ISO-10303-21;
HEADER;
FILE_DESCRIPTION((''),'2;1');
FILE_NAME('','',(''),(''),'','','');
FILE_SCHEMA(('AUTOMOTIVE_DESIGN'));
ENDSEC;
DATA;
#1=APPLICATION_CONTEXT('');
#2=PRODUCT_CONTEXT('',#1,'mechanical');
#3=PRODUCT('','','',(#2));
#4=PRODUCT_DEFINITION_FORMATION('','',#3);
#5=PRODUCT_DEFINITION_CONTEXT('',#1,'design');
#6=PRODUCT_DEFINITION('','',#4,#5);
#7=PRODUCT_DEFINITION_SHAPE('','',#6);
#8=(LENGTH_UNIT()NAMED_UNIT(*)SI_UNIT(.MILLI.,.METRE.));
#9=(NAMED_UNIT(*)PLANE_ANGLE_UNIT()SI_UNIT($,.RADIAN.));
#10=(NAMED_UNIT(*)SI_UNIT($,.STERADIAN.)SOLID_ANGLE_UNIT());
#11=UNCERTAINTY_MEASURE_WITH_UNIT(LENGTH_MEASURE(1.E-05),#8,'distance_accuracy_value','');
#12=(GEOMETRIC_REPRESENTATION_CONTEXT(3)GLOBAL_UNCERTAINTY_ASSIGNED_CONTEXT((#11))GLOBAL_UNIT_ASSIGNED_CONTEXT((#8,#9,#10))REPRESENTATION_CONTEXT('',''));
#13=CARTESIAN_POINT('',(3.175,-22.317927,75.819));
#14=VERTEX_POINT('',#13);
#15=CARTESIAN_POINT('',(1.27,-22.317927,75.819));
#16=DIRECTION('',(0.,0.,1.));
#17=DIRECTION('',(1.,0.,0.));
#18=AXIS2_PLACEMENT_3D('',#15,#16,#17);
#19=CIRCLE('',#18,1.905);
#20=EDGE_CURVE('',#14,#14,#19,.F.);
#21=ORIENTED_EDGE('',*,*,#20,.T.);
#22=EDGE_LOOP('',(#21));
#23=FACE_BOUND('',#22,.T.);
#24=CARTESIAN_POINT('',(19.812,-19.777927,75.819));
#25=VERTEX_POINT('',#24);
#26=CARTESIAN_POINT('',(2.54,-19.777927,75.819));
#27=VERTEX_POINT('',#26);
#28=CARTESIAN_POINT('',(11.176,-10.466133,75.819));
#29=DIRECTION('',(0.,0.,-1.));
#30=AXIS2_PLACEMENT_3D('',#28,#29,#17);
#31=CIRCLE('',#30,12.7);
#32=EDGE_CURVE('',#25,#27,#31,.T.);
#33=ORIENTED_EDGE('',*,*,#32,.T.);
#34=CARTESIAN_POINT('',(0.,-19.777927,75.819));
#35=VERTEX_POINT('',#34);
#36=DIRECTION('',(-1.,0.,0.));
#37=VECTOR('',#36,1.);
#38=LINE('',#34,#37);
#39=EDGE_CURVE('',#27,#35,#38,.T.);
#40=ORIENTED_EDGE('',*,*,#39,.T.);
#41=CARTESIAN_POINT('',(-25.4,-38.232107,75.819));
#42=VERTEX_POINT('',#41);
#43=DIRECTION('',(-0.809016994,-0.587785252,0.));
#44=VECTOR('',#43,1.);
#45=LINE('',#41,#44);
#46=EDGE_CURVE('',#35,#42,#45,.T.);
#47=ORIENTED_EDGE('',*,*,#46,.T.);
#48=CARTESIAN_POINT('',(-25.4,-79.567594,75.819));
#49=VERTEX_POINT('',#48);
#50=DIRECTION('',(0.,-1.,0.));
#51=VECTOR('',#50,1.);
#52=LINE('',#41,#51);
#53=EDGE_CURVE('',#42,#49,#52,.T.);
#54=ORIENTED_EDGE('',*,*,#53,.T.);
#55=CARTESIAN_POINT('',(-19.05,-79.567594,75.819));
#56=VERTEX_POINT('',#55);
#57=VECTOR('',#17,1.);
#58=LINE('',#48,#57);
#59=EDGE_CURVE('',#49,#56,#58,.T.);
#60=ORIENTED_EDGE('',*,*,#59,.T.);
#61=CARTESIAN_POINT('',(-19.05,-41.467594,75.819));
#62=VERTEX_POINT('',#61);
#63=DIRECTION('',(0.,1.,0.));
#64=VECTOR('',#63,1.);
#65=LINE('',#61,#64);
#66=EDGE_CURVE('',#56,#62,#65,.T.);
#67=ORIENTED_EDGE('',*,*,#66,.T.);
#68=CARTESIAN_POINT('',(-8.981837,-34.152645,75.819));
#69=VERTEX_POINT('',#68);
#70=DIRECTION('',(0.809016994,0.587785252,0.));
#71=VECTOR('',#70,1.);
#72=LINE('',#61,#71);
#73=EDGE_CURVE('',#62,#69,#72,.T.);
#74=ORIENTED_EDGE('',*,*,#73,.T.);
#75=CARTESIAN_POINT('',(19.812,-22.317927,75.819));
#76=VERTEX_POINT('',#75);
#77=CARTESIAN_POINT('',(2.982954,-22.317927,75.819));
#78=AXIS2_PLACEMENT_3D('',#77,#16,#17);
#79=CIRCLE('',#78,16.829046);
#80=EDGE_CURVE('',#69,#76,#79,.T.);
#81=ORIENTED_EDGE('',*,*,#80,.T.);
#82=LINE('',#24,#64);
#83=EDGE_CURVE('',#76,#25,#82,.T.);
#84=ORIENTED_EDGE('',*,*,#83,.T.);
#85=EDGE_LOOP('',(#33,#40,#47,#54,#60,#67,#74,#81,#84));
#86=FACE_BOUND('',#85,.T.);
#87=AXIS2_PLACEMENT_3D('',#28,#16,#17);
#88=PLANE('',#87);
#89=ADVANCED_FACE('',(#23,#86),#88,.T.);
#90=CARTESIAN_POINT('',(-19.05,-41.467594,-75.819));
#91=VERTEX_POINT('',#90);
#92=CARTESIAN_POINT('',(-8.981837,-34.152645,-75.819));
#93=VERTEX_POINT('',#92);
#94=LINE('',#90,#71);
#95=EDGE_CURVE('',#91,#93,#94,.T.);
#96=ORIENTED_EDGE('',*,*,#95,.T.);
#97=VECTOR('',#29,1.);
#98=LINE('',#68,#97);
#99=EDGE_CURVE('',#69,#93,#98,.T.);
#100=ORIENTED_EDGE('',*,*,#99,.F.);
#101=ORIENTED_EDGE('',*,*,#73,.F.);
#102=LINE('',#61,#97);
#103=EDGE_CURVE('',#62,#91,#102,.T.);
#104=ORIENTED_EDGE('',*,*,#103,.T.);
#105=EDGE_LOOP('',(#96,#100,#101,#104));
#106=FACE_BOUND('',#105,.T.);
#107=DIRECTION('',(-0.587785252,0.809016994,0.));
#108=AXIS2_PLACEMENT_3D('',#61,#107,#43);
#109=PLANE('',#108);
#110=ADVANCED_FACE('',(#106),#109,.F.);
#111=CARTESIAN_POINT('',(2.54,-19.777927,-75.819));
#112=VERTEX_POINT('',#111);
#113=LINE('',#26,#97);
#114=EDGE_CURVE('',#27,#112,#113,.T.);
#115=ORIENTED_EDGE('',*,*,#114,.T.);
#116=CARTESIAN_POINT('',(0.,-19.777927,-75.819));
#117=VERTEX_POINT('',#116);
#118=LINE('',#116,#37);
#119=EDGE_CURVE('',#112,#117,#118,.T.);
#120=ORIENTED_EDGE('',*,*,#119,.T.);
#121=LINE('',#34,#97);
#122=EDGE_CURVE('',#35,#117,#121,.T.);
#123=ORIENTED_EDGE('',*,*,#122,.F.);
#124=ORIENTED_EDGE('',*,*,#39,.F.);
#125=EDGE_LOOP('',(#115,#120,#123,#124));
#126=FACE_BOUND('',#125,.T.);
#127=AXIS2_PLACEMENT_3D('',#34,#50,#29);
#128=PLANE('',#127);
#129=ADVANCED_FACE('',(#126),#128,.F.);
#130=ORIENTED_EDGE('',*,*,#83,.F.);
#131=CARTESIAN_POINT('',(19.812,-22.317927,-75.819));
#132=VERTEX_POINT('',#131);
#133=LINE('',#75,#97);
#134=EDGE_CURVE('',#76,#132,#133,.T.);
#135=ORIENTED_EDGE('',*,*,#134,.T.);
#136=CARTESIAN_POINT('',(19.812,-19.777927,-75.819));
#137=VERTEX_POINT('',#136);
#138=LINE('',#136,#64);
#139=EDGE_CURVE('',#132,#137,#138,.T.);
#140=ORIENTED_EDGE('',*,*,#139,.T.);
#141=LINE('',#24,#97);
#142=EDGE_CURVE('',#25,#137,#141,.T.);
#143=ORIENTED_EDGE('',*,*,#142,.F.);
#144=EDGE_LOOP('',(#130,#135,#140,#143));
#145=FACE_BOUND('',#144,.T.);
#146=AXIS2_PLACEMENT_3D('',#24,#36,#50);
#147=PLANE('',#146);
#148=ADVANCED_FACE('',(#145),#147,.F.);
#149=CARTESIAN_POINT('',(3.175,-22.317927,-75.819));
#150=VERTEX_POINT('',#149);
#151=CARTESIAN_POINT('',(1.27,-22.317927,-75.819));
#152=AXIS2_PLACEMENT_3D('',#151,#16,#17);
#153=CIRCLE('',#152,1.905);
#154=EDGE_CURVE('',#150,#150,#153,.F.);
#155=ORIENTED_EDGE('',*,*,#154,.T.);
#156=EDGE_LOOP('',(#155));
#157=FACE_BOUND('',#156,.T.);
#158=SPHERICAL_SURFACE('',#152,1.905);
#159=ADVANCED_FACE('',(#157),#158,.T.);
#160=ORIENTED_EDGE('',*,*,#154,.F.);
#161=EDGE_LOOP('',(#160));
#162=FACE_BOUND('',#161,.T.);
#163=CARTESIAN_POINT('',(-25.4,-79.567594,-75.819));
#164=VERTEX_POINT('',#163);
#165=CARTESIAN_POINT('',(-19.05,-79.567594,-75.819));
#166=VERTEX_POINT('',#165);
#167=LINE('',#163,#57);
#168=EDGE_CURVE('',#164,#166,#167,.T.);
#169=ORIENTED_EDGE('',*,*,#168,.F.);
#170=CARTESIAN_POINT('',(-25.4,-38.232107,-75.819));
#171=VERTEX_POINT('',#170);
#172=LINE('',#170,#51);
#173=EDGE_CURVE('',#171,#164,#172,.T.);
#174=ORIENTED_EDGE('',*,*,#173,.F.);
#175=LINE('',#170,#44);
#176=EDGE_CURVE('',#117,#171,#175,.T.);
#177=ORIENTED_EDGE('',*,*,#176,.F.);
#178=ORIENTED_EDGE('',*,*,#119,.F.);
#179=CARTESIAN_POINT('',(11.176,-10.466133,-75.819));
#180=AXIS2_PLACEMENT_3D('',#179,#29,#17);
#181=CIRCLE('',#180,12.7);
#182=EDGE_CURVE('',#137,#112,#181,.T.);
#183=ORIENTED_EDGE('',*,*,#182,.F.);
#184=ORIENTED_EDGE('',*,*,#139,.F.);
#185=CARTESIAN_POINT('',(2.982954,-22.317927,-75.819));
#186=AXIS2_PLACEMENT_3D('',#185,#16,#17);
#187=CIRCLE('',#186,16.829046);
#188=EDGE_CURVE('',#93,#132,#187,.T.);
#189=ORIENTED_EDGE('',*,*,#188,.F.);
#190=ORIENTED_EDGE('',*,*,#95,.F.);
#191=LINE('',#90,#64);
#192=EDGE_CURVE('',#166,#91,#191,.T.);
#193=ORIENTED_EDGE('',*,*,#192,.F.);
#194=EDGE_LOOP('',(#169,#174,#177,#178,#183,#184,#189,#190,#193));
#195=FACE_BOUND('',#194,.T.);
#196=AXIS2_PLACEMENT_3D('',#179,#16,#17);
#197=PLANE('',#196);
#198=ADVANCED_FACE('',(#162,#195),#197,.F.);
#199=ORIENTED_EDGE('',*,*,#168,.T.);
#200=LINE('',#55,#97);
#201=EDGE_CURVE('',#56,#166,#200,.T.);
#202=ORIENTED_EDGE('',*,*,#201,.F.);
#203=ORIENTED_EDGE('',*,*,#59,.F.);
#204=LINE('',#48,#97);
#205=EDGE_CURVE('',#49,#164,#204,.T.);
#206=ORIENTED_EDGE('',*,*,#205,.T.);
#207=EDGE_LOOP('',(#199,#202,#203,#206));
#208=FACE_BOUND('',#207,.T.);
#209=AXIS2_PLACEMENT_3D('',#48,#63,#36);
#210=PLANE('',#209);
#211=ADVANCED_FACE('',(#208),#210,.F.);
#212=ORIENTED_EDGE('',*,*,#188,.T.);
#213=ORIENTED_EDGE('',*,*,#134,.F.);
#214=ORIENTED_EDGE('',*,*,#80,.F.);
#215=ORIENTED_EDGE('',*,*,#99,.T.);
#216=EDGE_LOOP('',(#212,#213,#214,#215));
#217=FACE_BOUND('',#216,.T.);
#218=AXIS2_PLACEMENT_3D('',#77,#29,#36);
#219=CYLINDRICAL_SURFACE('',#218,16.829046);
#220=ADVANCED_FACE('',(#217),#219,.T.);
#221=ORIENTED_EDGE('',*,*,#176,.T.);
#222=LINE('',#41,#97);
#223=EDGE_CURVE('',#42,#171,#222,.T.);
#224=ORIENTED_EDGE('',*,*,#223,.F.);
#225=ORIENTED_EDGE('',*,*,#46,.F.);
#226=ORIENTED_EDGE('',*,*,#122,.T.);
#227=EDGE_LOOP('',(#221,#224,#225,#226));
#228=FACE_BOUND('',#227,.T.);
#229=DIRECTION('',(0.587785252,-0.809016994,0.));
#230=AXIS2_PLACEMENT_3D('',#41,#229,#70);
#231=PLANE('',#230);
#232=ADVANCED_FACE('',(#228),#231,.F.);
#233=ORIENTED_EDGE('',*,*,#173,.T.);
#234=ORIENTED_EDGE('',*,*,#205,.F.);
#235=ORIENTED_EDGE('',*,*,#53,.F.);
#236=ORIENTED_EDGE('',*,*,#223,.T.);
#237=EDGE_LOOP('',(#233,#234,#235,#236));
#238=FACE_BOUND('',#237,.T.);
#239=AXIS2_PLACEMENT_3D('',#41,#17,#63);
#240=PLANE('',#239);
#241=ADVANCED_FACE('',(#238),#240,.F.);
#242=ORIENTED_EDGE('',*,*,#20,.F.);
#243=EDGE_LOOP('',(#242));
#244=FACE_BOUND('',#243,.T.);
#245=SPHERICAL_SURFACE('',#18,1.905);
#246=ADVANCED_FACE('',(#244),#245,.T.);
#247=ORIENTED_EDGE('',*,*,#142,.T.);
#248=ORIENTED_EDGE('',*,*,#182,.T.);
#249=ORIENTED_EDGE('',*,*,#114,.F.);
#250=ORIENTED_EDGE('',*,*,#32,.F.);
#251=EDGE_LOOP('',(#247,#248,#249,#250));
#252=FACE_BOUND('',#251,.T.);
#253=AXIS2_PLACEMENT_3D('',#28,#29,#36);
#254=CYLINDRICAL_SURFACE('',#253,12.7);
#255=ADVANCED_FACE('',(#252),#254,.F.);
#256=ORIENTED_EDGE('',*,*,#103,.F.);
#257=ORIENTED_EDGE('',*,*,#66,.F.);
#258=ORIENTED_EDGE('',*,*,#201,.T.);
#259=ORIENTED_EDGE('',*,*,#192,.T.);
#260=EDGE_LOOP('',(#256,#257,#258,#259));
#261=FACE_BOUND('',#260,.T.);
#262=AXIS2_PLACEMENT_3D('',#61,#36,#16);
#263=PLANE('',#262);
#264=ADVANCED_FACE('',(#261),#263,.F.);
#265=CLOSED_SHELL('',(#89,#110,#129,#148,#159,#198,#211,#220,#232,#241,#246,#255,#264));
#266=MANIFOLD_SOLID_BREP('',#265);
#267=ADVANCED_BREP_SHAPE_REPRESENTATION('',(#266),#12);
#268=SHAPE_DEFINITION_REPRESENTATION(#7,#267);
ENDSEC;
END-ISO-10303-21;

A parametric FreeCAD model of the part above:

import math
import FreeCAD as App
import Part
import Sketcher

V = App.Vector
Q = App.Units.Quantity

doc = App.newDocument("Part")
body = doc.addObject("PartDesign::Body", "Body")

# Sketch on XY plane
sketch1 = doc.addObject("Sketcher::SketchObject", "Sketch")
body.addObject(sketch1)
sketch1.AttachmentSupport = (doc.XY_Plane, [""])
sketch1.MapMode = "FlatFace"
sketch1.addGeometry([
    Part.LineSegment(V(-19.1, -41.5, 0), V(-9, -34.2, 0)),  # 0
    Part.ArcOfCircle(Part.Circle(V(3, -22.3, 0), V(0, 0, 1), 16.8), math.radians(-135), math.radians(0)),  # 1
    Part.LineSegment(V(19.8, -22.3, 0), V(19.8, -19.8, 0)),  # 2
    Part.ArcOfCircle(Part.Circle(V(11.2, -10.5, 0), V(0, 0, 1), 12.7), math.radians(-133), math.radians(-47)),  # 3
    Part.LineSegment(V(2.5, -19.8, 0), V(0, -19.8, 0)),  # 4
    Part.LineSegment(V(0, -19.8, 0), V(-25.4, -38.2, 0)),  # 5
    Part.LineSegment(V(-25.4, -38.2, 0), V(-25.4, -79.6, 0)),  # 6
    Part.LineSegment(V(-25.4, -79.6, 0), V(-19.1, -79.6, 0)),  # 7
    Part.LineSegment(V(-19.1, -79.6, 0), V(-19.1, -41.5, 0)),  # 8
], False)
sketch1.addConstraint([
    Sketcher.Constraint("Coincident", 0, 2, 1, 1),
    Sketcher.Constraint("Tangent", 1, 2, 2, 1),
    Sketcher.Constraint("Coincident", 2, 2, 3, 2),
    Sketcher.Constraint("Coincident", 3, 1, 4, 1),
    Sketcher.Constraint("Coincident", 4, 2, 5, 1),
    Sketcher.Constraint("Coincident", 5, 2, 6, 1),
    Sketcher.Constraint("Coincident", 6, 2, 7, 1),
    Sketcher.Constraint("Coincident", 7, 2, 8, 1),
    Sketcher.Constraint("Coincident", 8, 2, 0, 1),
    Sketcher.Constraint("Vertical", 2),
    Sketcher.Constraint("Horizontal", 4),
    Sketcher.Constraint("Vertical", 6),
    Sketcher.Constraint("Horizontal", 7),
    Sketcher.Constraint("Vertical", 8),
    Sketcher.Constraint("PointOnObject", 4, 2, -2),
    Sketcher.Constraint("Parallel", 0, 5),
    Sketcher.Constraint("Horizontal", 2, 2, 3, 1),
    Sketcher.Constraint("Equal", 4, 2),
    Sketcher.Constraint("Radius", 3, Q("0.5 in")),
    Sketcher.Constraint("DistanceX", 4, 2, 4, 1, Q("0.1 in")),
    Sketcher.Constraint("DistanceY", 8, 1, 8, 2, Q("1.5 in")),
    Sketcher.Constraint("DistanceX", 5, 2, -1, 1, Q("1 in")),
    Sketcher.Constraint("Angle", 0, Q("36 deg")),
    Sketcher.Constraint("DistanceX", 7, 1, 7, 2, Q("0.25 in")),
    Sketcher.Constraint("DistanceX", -1, 1, 3, 3, Q("0.44 in")),
    Sketcher.Constraint("Radius", 1, 16.829046),
    Sketcher.Constraint("DistanceY", 6, 2, 6, 1, 41.335487),
    Sketcher.Constraint("DistanceY", 1, 3, -1, 1, 22.317927),
])
pad1 = doc.addObject("PartDesign::Pad", "Pad")
body.addObject(pad1)
pad1.Profile = sketch1
pad1.Length = Q("5.97 in")
pad1.Midplane = True

# Sketch on XY plane
sketch2 = doc.addObject("Sketcher::SketchObject", "Sketch001")
body.addObject(sketch2)
sketch2.AttachmentSupport = (doc.XY_Plane, [""])
sketch2.MapMode = "FlatFace"
sketch2.AttachmentOffset = App.Placement(V(0, 0, 2.985 * 25.4), App.Rotation())
sketch2.addGeometry([
    Part.LineSegment(V(1.3, -20.4, 0), V(1.3, -24.2, 0)),
    Part.ArcOfCircle(Part.Circle(V(1.3, -22.3, 0), V(0, 0, 1), 1.9), math.radians(-90), math.radians(90)),
], False)
sketch2.addGeometry(Part.LineSegment(V(1.3, -20.4, 0), V(1.3, -24.2, 0)), True)  # axis
sketch2.addConstraint([
    Sketcher.Constraint("Coincident", 0, 1, 1, 2),
    Sketcher.Constraint("Coincident", 1, 1, 0, 2),
    Sketcher.Constraint("Vertical", 0),
    Sketcher.Constraint("Vertical", 2),
    Sketcher.Constraint("Coincident", 2, 1, 0, 1),
    Sketcher.Constraint("Vertical", 1, 3, 0, 1),
    Sketcher.Constraint("Equal", 0, 2),
    Sketcher.Constraint("Radius", 1, Q("0.075 in")),
    Sketcher.Constraint("DistanceX", -1, 1, 1, 3, Q("0.05 in")),
    Sketcher.Constraint("DistanceY", 1, 3, -1, 1, 22.317927),
])
revolution = doc.addObject("PartDesign::Revolution", "Revolution")
body.addObject(revolution)
revolution.Profile = sketch2
revolution.ReferenceAxis = (sketch2, ["Axis0"])
revolution.Angle = 360

# Sketch on XY plane
sketch3 = doc.addObject("Sketcher::SketchObject", "Sketch002")
body.addObject(sketch3)
sketch3.AttachmentSupport = (doc.XY_Plane, [""])
sketch3.MapMode = "FlatFace"
sketch3.AttachmentOffset = App.Placement(V(0, 0, -2.985 * 25.4), App.Rotation())
sketch3.addGeometry([
    Part.LineSegment(V(1.3, -20.4, 0), V(1.3, -24.2, 0)),
    Part.ArcOfCircle(Part.Circle(V(1.3, -22.3, 0), V(0, 0, 1), 1.9), math.radians(90), math.radians(270)),
], False)
sketch3.addGeometry(Part.LineSegment(V(1.3, -20.4, 0), V(1.3, -24.2, 0)), True)  # axis
sketch3.addConstraint([
    Sketcher.Constraint("Coincident", 0, 1, 1, 1),
    Sketcher.Constraint("Coincident", 1, 2, 0, 2),
    Sketcher.Constraint("Vertical", 0),
    Sketcher.Constraint("Vertical", 2),
    Sketcher.Constraint("Coincident", 2, 1, 0, 1),
    Sketcher.Constraint("Vertical", 1, 3, 0, 1),
    Sketcher.Constraint("Equal", 0, 2),
    Sketcher.Constraint("Radius", 1, Q("0.075 in")),
    Sketcher.Constraint("DistanceX", -1, 1, 1, 3, Q("0.05 in")),
    Sketcher.Constraint("DistanceY", 1, 3, -1, 1, 22.317927),
])
revolution2 = doc.addObject("PartDesign::Revolution", "Revolution001")
body.addObject(revolution2)
revolution2.Profile = sketch3
revolution2.ReferenceAxis = (sketch3, ["Axis0"])
revolution2.Angle = 360

doc.recompute()
